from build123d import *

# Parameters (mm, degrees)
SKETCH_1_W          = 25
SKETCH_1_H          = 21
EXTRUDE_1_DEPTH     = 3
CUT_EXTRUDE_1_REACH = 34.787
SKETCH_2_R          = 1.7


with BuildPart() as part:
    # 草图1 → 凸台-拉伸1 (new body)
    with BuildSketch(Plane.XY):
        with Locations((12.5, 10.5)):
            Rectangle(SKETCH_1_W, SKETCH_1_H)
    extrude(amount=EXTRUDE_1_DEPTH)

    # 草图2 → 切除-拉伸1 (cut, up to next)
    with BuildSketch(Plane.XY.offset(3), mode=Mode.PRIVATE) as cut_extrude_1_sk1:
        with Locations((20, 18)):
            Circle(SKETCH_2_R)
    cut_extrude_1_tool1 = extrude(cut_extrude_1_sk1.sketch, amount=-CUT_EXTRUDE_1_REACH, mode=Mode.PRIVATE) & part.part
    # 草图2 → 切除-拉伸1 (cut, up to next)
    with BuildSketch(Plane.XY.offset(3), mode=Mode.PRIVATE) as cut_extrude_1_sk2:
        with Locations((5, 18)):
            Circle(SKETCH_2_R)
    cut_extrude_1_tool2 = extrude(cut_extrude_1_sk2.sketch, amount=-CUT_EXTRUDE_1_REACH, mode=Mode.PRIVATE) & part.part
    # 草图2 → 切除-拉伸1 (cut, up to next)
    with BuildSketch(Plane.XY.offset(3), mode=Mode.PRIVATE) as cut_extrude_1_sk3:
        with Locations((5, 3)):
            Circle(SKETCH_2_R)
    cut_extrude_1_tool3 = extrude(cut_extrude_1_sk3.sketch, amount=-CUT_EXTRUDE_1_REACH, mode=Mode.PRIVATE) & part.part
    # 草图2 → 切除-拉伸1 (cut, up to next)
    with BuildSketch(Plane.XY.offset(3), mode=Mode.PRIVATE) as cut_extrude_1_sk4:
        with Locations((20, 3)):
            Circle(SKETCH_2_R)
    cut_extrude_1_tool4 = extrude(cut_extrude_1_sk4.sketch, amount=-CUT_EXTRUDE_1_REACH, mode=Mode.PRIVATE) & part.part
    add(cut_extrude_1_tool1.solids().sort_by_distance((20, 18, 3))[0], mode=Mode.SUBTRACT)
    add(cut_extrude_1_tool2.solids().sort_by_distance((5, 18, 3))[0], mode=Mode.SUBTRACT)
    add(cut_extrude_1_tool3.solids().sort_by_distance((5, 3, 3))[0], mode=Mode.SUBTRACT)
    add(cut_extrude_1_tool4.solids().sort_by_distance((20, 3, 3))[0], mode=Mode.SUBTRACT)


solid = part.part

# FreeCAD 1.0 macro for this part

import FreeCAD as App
import Part
import Sketcher
Q = App.Units.Quantity


def add_polygon(sketch, points):
    """Adds a closed chain of lines whose ends are joined by coincident constraints."""
    first, n = sketch.GeometryCount, len(points)
    for a, b in zip(points, points[1:] + points[:1]):
        sketch.addGeometry(Part.LineSegment(App.Vector(*a, 0), App.Vector(*b, 0)), False)
    for i in range(n):
        sketch.addConstraint(Sketcher.Constraint("Coincident", first + i, 2, first + (i + 1) % n, 1))

doc = App.newDocument("Part")
body = doc.addObject("PartDesign::Body", "Body")

# Sketch on XY plane
sketch1 = doc.addObject("Sketcher::SketchObject", "Sketch")
body.addObject(sketch1)
sketch1.AttachmentSupport = (doc.XY_Plane, [""])
sketch1.MapMode = "FlatFace"
add_polygon(sketch1, [(0, 21), (0, 0), (25, 0), (25, 21)])  # lines 0-3
sketch1.addConstraint([
    Sketcher.Constraint("Vertical", 0),
    Sketcher.Constraint("Horizontal", 1),
    Sketcher.Constraint("Vertical", 2),
    Sketcher.Constraint("Horizontal", 3),
    Sketcher.Constraint("Coincident", 0, 2, -1, 1),
    Sketcher.Constraint("DistanceX", 1, 1, 1, 2, Q("25 mm")),
    Sketcher.Constraint("DistanceY", 0, 2, 0, 1, Q("21 mm")),
])
pad1 = doc.addObject("PartDesign::Pad", "Pad")
body.addObject(pad1)
pad1.Profile = sketch1
pad1.Length = 3

# Sketch on XY plane
sketch2 = doc.addObject("Sketcher::SketchObject", "Sketch001")
body.addObject(sketch2)
sketch2.AttachmentSupport = (doc.XY_Plane, [""])
sketch2.MapMode = "FlatFace"
sketch2.AttachmentOffset = App.Placement(App.Vector(0, 0, 3), App.Rotation())
sketch2.addGeometry(Part.Circle(App.Vector(20, 18, 0), App.Vector(0, 0, 1), 1.7), False)
sketch2.addConstraint([
    Sketcher.Constraint("Diameter", 0, Q("3.4 mm")),
    Sketcher.Constraint("DistanceX", -1, 1, 0, 3, Q("20 mm")),
    Sketcher.Constraint("DistanceY", -1, 1, 0, 3, Q("18 mm")),
])
pocket1 = doc.addObject("PartDesign::Pocket", "Pocket")
body.addObject(pocket1)
pocket1.Profile = sketch2
pocket1.Type = "UpToFirst"

# Sketch on XY plane
sketch3 = doc.addObject("Sketcher::SketchObject", "Sketch002")
body.addObject(sketch3)
sketch3.AttachmentSupport = (doc.XY_Plane, [""])
sketch3.MapMode = "FlatFace"
sketch3.AttachmentOffset = App.Placement(App.Vector(0, 0, 3), App.Rotation())
sketch3.addGeometry(Part.Circle(App.Vector(5, 18, 0), App.Vector(0, 0, 1), 1.7), False)
sketch3.addConstraint([
    Sketcher.Constraint("Diameter", 0, Q("3.4 mm")),
    Sketcher.Constraint("DistanceX", -1, 1, 0, 3, Q("5 mm")),
    Sketcher.Constraint("DistanceY", -1, 1, 0, 3, Q("18 mm")),
])
pocket2 = doc.addObject("PartDesign::Pocket", "Pocket001")
body.addObject(pocket2)
pocket2.Profile = sketch3
pocket2.Type = "UpToFirst"

# Sketch on XY plane
sketch4 = doc.addObject("Sketcher::SketchObject", "Sketch003")
body.addObject(sketch4)
sketch4.AttachmentSupport = (doc.XY_Plane, [""])
sketch4.MapMode = "FlatFace"
sketch4.AttachmentOffset = App.Placement(App.Vector(0, 0, 3), App.Rotation())
sketch4.addGeometry(Part.Circle(App.Vector(5, 3, 0), App.Vector(0, 0, 1), 1.7), False)
sketch4.addConstraint([
    Sketcher.Constraint("Diameter", 0, Q("3.4 mm")),
    Sketcher.Constraint("DistanceX", -1, 1, 0, 3, Q("5 mm")),
    Sketcher.Constraint("DistanceY", -1, 1, 0, 3, Q("3 mm")),
])
pocket3 = doc.addObject("PartDesign::Pocket", "Pocket002")
body.addObject(pocket3)
pocket3.Profile = sketch4
pocket3.Type = "UpToFirst"

# Sketch on XY plane
sketch5 = doc.addObject("Sketcher::SketchObject", "Sketch004")
body.addObject(sketch5)
sketch5.AttachmentSupport = (doc.XY_Plane, [""])
sketch5.MapMode = "FlatFace"
sketch5.AttachmentOffset = App.Placement(App.Vector(0, 0, 3), App.Rotation())
sketch5.addGeometry(Part.Circle(App.Vector(20, 3, 0), App.Vector(0, 0, 1), 1.7), False)
sketch5.addConstraint([
    Sketcher.Constraint("Diameter", 0, Q("3.4 mm")),
    Sketcher.Constraint("DistanceX", -1, 1, 0, 3, Q("20 mm")),
    Sketcher.Constraint("DistanceY", -1, 1, 0, 3, Q("3 mm")),
])
pocket4 = doc.addObject("PartDesign::Pocket", "Pocket003")
body.addObject(pocket4)
pocket4.Profile = sketch5
pocket4.Type = "UpToFirst"

doc.recompute()
